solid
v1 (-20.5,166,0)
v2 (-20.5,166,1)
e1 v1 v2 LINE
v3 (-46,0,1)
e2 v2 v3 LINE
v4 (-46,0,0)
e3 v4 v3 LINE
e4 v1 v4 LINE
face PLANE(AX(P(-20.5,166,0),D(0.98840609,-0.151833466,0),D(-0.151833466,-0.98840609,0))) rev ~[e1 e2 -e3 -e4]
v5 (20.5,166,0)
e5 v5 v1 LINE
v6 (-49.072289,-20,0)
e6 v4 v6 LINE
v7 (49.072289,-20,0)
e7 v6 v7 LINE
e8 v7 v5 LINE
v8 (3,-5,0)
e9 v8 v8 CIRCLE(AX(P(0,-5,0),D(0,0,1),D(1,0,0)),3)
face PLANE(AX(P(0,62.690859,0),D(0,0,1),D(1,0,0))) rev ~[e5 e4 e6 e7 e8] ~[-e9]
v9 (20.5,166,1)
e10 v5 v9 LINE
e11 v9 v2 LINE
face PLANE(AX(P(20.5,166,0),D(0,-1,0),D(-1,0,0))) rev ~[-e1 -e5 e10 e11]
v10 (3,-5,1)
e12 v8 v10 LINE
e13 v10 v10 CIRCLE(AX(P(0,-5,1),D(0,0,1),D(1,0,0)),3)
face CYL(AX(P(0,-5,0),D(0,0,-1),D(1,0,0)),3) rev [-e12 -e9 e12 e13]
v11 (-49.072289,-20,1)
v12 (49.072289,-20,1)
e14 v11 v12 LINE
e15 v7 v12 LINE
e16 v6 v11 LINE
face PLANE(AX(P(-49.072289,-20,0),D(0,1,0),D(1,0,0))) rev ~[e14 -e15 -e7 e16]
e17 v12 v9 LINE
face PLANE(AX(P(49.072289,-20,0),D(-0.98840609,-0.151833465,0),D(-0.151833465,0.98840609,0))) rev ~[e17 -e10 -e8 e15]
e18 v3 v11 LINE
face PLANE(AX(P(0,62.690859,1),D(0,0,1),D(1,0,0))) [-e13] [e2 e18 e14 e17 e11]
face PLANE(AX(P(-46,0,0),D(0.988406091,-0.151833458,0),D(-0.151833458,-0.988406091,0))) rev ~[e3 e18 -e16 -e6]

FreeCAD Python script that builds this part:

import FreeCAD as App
import Part
import Sketcher

doc = App.newDocument("Part")
params = doc.addObject("Spreadsheet::Sheet", "Params")
for row, (alias, value) in enumerate([
    ("sketch1_diameter", "6 mm"),
    ("sketch1_width", "41 mm"),
    ("pad1_length", "1 mm"),
], start=1):
    params.set(f"A{row}", alias)
    params.set(f"B{row}", "=" + value)
    params.setAlias(f"B{row}", alias)

body = doc.addObject("PartDesign::Body", "Body")

# Sketch on XY plane
sketch1 = body.newObject("Sketcher::SketchObject", "Sketch")
sketch1.AttachmentSupport = (doc.getObject("XY_Plane"), [""])
sketch1.MapMode = "FlatFace"
sketch1.addGeometry(Part.LineSegment(App.Vector(-20.5, 166, 0), App.Vector(-46, 0, 0)), False)
sketch1.addGeometry(Part.LineSegment(App.Vector(-46, 0, 0), App.Vector(-49.072289, -20, 0)), False)
sketch1.addGeometry(Part.LineSegment(App.Vector(-49.072289, -20, 0), App.Vector(49.072289, -20, 0)), False)
sketch1.addGeometry(Part.LineSegment(App.Vector(49.072289, -20, 0), App.Vector(20.5, 166, 0)), False)
sketch1.addGeometry(Part.LineSegment(App.Vector(20.5, 166, 0), App.Vector(-20.5, 166, 0)), False)
sketch1.addGeometry(Part.Circle(App.Vector(0, -5, 0), App.Vector(0, 0, 1), 3), False)
sketch1.addConstraint(Sketcher.Constraint("Coincident", 0, 2, 1, 1))
sketch1.addConstraint(Sketcher.Constraint("Coincident", 1, 2, 2, 1))
sketch1.addConstraint(Sketcher.Constraint("Coincident", 2, 2, 3, 1))
sketch1.addConstraint(Sketcher.Constraint("Coincident", 3, 2, 4, 1))
sketch1.addConstraint(Sketcher.Constraint("Coincident", 4, 2, 0, 1))
sketch1.addConstraint(Sketcher.Constraint("Horizontal", 2))
sketch1.addConstraint(Sketcher.Constraint("Horizontal", 4))
sketch1.addConstraint(Sketcher.Constraint("PointOnObject", 5, 3, -2))
sketch1.addConstraint(Sketcher.Constraint("PointOnObject", 0, 2, -1))
sketch1.addConstraint(Sketcher.Constraint("Parallel", 0, 1))
sketch1.addConstraint(Sketcher.Constraint("Diameter", 5, 6.0))
sketch1.addConstraint(Sketcher.Constraint("DistanceX", 4, 2, 4, 1, 41.0))
sketch1.addConstraint(Sketcher.Constraint("DistanceY", 5, 3, -1, 1, 5.0))
sketch1.addConstraint(Sketcher.Constraint("DistanceX", 0, 2, -1, 1, 46.0))
sketch1.addConstraint(Sketcher.Constraint("DistanceY", 1, 2, -1, 1, 20.0))
sketch1.addConstraint(Sketcher.Constraint("DistanceY", -1, 1, 3, 2, 166.0))
sketch1.addConstraint(Sketcher.Constraint("DistanceX", -1, 1, 3, 2, 20.5))
sketch1.addConstraint(Sketcher.Constraint("DistanceX", 2, 1, 2, 2, 98.144578))
sketch1.setExpression("Constraints[10]", "Params.sketch1_diameter")
sketch1.setExpression("Constraints[11]", "Params.sketch1_width")
pad1 = body.newObject("PartDesign::Pad", "Pad")
pad1.Profile = sketch1
pad1.setExpression("Length", "Params.pad1_length")

doc.recompute()
